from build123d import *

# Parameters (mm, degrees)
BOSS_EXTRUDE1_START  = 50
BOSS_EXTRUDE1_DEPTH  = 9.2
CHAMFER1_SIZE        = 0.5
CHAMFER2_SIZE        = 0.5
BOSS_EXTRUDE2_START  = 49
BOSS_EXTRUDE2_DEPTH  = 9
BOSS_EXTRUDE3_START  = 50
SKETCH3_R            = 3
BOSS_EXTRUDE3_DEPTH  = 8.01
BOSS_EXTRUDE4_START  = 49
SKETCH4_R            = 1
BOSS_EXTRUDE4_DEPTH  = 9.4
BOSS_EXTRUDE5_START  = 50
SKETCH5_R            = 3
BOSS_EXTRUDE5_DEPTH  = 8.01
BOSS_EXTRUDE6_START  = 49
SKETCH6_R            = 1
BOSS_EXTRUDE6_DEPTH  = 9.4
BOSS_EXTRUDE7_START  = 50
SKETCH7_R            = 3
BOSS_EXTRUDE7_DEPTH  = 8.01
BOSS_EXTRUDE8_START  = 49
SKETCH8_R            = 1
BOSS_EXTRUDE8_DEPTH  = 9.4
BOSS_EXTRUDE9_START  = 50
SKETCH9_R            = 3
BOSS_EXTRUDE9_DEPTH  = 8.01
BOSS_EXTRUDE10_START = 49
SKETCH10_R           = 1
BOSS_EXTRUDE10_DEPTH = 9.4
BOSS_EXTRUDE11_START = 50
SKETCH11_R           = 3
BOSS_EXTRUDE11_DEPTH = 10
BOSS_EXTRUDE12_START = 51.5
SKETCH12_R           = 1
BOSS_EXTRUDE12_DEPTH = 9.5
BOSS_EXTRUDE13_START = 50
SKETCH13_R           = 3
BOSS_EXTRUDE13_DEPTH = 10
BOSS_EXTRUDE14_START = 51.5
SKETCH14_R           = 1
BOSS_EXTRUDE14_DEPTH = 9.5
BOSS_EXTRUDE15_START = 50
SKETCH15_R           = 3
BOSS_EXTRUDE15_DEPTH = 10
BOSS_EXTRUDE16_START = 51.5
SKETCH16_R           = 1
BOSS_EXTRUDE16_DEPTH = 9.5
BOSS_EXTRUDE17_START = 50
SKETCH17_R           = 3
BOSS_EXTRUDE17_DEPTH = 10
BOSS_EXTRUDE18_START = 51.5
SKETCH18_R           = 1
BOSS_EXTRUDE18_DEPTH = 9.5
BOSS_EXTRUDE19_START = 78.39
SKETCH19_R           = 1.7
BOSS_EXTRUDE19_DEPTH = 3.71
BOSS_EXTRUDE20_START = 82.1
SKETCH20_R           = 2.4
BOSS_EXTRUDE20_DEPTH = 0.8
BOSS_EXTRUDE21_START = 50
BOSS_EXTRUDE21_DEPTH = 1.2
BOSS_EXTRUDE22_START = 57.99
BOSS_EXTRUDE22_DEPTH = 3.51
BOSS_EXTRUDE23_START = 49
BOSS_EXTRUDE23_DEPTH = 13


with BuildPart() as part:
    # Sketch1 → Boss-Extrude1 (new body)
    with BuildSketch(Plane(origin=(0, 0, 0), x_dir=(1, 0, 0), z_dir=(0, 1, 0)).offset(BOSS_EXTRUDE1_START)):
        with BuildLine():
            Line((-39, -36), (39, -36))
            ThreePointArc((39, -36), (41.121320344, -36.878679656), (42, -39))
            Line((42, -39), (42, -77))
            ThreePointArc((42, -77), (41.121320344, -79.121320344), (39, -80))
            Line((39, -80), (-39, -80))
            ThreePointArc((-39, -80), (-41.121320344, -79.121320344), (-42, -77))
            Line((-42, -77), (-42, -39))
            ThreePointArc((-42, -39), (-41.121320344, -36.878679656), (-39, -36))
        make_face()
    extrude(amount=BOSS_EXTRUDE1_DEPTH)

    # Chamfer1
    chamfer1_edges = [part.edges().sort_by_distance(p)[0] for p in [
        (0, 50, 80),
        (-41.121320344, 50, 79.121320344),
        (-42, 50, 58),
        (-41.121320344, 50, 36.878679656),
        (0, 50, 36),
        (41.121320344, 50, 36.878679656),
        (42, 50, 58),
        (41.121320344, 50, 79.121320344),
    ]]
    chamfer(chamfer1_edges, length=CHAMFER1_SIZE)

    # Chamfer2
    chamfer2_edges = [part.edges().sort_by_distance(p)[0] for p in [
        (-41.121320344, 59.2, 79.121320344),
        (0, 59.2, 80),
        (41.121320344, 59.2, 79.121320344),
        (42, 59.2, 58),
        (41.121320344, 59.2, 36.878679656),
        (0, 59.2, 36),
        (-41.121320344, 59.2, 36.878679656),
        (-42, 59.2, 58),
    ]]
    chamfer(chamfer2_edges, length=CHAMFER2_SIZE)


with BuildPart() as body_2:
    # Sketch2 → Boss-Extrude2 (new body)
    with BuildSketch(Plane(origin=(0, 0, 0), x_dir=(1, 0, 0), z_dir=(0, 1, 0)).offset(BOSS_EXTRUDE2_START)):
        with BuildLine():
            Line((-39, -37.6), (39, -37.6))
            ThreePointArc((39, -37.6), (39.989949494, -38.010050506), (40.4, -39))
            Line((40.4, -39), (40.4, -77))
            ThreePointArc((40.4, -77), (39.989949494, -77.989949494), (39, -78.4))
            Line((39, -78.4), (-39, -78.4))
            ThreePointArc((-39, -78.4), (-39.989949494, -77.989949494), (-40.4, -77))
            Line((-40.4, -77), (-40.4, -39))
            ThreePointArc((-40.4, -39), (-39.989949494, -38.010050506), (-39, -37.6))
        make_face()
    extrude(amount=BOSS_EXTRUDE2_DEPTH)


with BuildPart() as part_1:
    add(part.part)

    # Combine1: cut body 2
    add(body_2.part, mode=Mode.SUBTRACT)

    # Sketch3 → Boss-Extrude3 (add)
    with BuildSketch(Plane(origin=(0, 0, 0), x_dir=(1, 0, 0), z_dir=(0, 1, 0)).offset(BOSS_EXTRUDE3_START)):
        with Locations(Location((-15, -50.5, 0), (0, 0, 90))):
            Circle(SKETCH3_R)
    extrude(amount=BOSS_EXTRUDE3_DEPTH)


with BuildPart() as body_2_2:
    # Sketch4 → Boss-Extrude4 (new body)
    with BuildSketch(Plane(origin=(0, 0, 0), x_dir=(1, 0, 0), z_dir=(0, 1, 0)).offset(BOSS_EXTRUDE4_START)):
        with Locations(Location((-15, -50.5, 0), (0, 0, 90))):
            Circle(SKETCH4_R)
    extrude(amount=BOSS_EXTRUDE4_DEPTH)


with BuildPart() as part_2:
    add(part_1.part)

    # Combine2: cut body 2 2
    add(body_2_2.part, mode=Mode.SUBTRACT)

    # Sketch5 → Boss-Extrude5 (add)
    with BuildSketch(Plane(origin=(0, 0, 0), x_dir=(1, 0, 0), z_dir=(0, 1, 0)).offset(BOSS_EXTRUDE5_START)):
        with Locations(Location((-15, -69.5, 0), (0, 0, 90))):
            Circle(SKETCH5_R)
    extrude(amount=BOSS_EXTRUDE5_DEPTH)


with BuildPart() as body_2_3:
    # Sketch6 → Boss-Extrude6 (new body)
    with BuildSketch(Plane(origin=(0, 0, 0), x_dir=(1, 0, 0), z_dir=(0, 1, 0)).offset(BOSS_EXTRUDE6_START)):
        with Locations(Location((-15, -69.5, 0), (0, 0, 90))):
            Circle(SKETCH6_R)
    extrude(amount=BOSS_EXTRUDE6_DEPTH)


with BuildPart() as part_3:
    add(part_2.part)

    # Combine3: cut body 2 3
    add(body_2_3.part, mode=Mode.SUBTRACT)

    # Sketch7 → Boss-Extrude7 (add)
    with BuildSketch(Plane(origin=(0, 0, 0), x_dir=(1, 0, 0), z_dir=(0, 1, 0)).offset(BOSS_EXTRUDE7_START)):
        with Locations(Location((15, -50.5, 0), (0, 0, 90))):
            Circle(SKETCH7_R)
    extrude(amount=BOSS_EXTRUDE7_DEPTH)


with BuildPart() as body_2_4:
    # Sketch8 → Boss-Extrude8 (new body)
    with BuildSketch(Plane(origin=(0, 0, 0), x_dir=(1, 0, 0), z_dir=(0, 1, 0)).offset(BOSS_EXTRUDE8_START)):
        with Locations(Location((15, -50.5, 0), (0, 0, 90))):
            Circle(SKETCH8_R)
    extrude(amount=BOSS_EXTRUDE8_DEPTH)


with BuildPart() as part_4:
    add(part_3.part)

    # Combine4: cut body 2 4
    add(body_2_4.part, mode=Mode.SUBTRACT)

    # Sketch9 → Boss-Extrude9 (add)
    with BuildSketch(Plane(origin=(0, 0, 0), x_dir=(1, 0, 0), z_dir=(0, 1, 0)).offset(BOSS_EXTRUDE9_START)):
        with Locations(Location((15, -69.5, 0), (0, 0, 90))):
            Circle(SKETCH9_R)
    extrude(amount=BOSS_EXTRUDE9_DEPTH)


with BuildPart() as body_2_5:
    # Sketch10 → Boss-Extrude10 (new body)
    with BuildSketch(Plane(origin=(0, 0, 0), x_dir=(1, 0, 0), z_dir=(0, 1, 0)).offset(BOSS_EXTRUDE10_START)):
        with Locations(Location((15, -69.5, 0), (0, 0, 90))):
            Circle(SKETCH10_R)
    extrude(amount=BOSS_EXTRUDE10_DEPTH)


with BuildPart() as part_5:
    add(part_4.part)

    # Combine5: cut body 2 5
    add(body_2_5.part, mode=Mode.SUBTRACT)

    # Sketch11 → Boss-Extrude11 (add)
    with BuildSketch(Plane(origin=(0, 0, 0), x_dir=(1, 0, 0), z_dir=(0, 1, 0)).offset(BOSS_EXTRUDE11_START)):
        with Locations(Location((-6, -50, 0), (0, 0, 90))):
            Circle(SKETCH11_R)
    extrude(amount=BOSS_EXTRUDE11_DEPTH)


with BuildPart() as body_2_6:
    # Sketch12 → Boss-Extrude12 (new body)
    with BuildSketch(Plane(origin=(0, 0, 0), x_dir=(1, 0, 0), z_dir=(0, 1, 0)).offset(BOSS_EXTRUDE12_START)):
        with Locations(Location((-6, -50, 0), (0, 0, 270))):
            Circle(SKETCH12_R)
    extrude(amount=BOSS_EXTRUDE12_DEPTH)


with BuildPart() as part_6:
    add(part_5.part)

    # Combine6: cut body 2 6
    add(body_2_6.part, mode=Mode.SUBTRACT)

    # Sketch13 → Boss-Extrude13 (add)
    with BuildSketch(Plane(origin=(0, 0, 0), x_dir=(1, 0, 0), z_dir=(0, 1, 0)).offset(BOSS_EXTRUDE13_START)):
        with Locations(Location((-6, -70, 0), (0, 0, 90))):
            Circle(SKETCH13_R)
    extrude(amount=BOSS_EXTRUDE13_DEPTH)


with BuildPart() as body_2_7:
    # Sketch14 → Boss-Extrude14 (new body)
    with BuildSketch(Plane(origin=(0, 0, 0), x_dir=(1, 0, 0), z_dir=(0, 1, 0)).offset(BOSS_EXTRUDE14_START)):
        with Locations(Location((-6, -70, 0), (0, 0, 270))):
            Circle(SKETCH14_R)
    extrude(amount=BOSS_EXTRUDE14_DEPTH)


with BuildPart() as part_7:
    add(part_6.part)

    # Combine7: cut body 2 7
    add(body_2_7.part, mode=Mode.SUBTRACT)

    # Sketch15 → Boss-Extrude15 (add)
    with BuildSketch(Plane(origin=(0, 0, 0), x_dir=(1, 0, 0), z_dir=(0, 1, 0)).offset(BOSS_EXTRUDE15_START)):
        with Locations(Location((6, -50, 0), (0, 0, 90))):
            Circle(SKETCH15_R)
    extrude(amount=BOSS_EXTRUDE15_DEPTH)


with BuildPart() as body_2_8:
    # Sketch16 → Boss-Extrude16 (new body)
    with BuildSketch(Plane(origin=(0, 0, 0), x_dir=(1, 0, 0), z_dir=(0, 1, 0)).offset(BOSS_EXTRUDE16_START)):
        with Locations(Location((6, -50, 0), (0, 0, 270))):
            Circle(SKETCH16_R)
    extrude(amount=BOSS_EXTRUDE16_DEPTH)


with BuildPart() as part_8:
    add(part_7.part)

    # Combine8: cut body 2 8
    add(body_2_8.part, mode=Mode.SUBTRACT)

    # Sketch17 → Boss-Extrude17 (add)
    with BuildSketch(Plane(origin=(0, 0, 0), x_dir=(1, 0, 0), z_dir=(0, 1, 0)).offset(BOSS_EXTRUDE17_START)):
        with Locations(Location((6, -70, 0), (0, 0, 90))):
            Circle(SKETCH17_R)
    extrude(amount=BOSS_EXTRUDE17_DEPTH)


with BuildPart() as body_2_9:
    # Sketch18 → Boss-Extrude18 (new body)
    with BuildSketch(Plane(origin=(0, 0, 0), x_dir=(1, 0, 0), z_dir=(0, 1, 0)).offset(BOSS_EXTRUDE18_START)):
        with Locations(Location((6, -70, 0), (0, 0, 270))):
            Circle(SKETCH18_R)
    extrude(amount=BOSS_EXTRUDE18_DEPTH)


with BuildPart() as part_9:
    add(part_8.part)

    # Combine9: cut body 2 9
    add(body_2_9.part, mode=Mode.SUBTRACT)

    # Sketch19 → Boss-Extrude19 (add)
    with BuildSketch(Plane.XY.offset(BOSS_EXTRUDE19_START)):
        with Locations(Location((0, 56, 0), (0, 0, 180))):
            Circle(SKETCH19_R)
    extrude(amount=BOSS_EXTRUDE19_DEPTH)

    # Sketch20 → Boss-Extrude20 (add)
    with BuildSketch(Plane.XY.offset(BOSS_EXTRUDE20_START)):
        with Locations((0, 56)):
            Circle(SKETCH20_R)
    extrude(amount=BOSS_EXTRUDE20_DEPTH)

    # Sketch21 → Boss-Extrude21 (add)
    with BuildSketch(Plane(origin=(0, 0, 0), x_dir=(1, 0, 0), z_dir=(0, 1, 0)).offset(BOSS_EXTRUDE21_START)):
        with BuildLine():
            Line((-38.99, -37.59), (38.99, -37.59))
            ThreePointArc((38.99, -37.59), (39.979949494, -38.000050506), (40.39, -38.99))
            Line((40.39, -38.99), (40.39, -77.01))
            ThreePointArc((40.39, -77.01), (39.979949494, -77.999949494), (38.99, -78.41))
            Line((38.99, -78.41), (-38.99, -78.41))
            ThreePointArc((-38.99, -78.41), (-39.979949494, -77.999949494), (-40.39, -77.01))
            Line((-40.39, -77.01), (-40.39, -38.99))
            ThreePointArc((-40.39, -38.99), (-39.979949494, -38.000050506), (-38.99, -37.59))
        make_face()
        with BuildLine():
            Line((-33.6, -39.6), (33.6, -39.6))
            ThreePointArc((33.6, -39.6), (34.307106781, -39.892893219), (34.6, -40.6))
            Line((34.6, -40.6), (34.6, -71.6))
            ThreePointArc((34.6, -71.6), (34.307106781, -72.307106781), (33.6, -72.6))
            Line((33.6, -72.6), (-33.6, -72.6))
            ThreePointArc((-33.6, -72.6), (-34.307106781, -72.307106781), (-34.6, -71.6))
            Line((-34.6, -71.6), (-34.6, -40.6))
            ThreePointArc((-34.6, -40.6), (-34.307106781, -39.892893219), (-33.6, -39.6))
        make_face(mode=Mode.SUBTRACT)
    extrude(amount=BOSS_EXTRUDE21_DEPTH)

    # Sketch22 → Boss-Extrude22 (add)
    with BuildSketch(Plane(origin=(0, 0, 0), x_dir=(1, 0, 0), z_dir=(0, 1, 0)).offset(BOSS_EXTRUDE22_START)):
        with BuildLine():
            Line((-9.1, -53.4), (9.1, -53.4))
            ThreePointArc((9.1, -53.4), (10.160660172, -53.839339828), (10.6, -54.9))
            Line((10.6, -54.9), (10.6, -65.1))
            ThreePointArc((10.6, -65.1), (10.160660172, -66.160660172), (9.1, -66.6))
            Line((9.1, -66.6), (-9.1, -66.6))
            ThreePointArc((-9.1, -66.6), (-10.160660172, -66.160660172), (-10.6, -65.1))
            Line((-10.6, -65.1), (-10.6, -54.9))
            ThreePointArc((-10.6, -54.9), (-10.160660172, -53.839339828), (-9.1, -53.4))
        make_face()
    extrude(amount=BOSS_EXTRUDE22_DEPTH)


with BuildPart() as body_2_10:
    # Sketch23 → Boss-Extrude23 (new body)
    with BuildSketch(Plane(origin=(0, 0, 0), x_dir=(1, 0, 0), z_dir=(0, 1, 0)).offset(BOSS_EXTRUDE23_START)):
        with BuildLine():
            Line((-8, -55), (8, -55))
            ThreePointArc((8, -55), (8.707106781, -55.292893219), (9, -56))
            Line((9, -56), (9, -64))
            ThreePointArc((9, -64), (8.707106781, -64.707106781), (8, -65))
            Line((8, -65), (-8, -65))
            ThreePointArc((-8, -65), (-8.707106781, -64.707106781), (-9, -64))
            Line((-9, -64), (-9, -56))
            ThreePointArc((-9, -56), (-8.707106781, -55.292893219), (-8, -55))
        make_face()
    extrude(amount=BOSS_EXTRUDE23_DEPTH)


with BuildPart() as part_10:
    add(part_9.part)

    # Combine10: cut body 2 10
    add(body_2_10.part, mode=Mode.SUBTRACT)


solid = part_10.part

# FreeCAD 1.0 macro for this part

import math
import FreeCAD as App
import Part
import Sketcher
from FreeCAD import Vector
Q = App.Units.Quantity


def edges_at(feature, points):
    """Names of the edges that pass closest to the given points."""
    edges = feature.Shape.Edges
    near = lambda p: min(range(len(edges)), key=lambda i: edges[i].distToShape(Part.Vertex(*p))[0])
    return sorted({f"Edge{near(p) + 1}" for p in points})

doc = App.newDocument("Part")
body = doc.addObject("PartDesign::Body", "Body")

sketch1 = body.newObject("Sketcher::SketchObject", "Sketch")
sketch1.AttachmentSupport = (doc.getObject("XZ_Plane"), [""])
sketch1.MapMode = "FlatFace"
sketch1.AttachmentOffset = App.Placement(Vector(0, 0, -50), App.Rotation())
sketch1.addGeometry([
    Part.LineSegment(Vector(39, 36, 0), Vector(-39, 36, 0)),
    Part.ArcOfCircle(Part.Circle(Vector(-39, 39, 0), Vector(0, 0, 1), 3), math.radians(180), math.radians(270)),
    Part.LineSegment(Vector(-42, 39, 0), Vector(-42, 77, 0)),
    Part.ArcOfCircle(Part.Circle(Vector(-39, 77, 0), Vector(0, 0, 1), 3), math.radians(90), math.radians(180)),
    Part.LineSegment(Vector(-39, 80, 0), Vector(39, 80, 0)),
    Part.ArcOfCircle(Part.Circle(Vector(39, 77, 0), Vector(0, 0, 1), 3), math.radians(0), math.radians(90)),
    Part.LineSegment(Vector(42, 77, 0), Vector(42, 39, 0)),
    Part.ArcOfCircle(Part.Circle(Vector(39, 39, 0), Vector(0, 0, 1), 3), math.radians(-90), math.radians(0)),
], False)
sketch1.addConstraint([
    Sketcher.Constraint("Tangent", 0, 2, 1, 2),
    Sketcher.Constraint("Tangent", 1, 1, 2, 1),
    Sketcher.Constraint("Tangent", 2, 2, 3, 2),
    Sketcher.Constraint("Tangent", 3, 1, 4, 1),
    Sketcher.Constraint("Tangent", 4, 2, 5, 2),
    Sketcher.Constraint("Tangent", 5, 1, 6, 1),
    Sketcher.Constraint("Tangent", 6, 2, 7, 2),
    Sketcher.Constraint("Tangent", 7, 1, 0, 1),
    Sketcher.Constraint("Horizontal", 0),
    Sketcher.Constraint("Vertical", 2),
    Sketcher.Constraint("Horizontal", 4),
    Sketcher.Constraint("Vertical", 6),
    Sketcher.Constraint("Equal", 1, 3),
    Sketcher.Constraint("Equal", 3, 5),
    Sketcher.Constraint("Equal", 5, 7),
    Sketcher.Constraint("Radius", 1, Q("3 mm")),
    Sketcher.Constraint("DistanceX", 0, 2, 0, 1, Q("78 mm")),
    Sketcher.Constraint("DistanceY", 2, 1, 2, 2, Q("38 mm")),
    Sketcher.Constraint("DistanceX", 1, 3, -1, 1, Q("39 mm")),
    Sketcher.Constraint("DistanceY", -1, 1, 1, 3, Q("39 mm")),
])
pad1 = body.newObject("PartDesign::Pad", "Pad")
pad1.Profile = sketch1
pad1.Length = 9.2
pad1.Reversed = True
doc.recompute()

chamfer = body.newObject("PartDesign::Chamfer", "Chamfer")
chamfer.Base = (pad1, edges_at(pad1, [
    (0, 50, 80),
    (-41.121, 50, 79.121),
    (-42, 50, 58),
    (-41.121, 50, 36.879),
    (0, 50, 36),
    (41.121, 50, 36.879),
    (42, 50, 58),
    (41.121, 50, 79.121),
]))
chamfer.Size = 0.5
doc.recompute()

chamfer2 = body.newObject("PartDesign::Chamfer", "Chamfer001")
chamfer2.Base = (chamfer, edges_at(chamfer, [
    (-41.121, 59.2, 79.121),
    (0, 59.2, 80),
    (41.121, 59.2, 79.121),
    (42, 59.2, 58),
    (41.121, 59.2, 36.879),
    (0, 59.2, 36),
    (-41.121, 59.2, 36.879),
    (-42, 59.2, 58),
]))
chamfer2.Size = 0.5
body2 = doc.addObject("PartDesign::Body", "Body001")

sketch2 = body2.newObject("Sketcher::SketchObject", "Sketch001")
sketch2.AttachmentSupport = (doc.getObject("XZ_Plane001"), [""])
sketch2.MapMode = "FlatFace"
sketch2.AttachmentOffset = App.Placement(Vector(0, 0, -49), App.Rotation())
sketch2.addGeometry([
    Part.LineSegment(Vector(39, 37.6, 0), Vector(-39, 37.6, 0)),
    Part.ArcOfCircle(Part.Circle(Vector(-39, 39, 0), Vector(0, 0, 1), 1.4), math.radians(180), math.radians(270)),
    Part.LineSegment(Vector(-40.4, 39, 0), Vector(-40.4, 77, 0)),
    Part.ArcOfCircle(Part.Circle(Vector(-39, 77, 0), Vector(0, 0, 1), 1.4), math.radians(90), math.radians(180)),
    Part.LineSegment(Vector(-39, 78.4, 0), Vector(39, 78.4, 0)),
    Part.ArcOfCircle(Part.Circle(Vector(39, 77, 0), Vector(0, 0, 1), 1.4), math.radians(0), math.radians(90)),
    Part.LineSegment(Vector(40.4, 77, 0), Vector(40.4, 39, 0)),
    Part.ArcOfCircle(Part.Circle(Vector(39, 39, 0), Vector(0, 0, 1), 1.4), math.radians(-90), math.radians(0)),
], False)
sketch2.addConstraint([
    Sketcher.Constraint("Tangent", 0, 2, 1, 2),
    Sketcher.Constraint("Tangent", 1, 1, 2, 1),
    Sketcher.Constraint("Tangent", 2, 2, 3, 2),
    Sketcher.Constraint("Tangent", 3, 1, 4, 1),
    Sketcher.Constraint("Tangent", 4, 2, 5, 2),
    Sketcher.Constraint("Tangent", 5, 1, 6, 1),
    Sketcher.Constraint("Tangent", 6, 2, 7, 2),
    Sketcher.Constraint("Tangent", 7, 1, 0, 1),
    Sketcher.Constraint("Horizontal", 0),
    Sketcher.Constraint("Vertical", 2),
    Sketcher.Constraint("Horizontal", 4),
    Sketcher.Constraint("Vertical", 6),
    Sketcher.Constraint("Equal", 1, 3),
    Sketcher.Constraint("Equal", 3, 5),
    Sketcher.Constraint("Equal", 5, 7),
    Sketcher.Constraint("Radius", 1, Q("1.4 mm")),
    Sketcher.Constraint("DistanceX", 0, 2, 0, 1, Q("78 mm")),
    Sketcher.Constraint("DistanceY", 2, 1, 2, 2, Q("38 mm")),
    Sketcher.Constraint("DistanceX", 1, 3, -1, 1, Q("39 mm")),
    Sketcher.Constraint("DistanceY", -1, 1, 1, 3, Q("39 mm")),
])
pad2 = body2.newObject("PartDesign::Pad", "Pad001")
pad2.Profile = sketch2
pad2.Length = 9
pad2.Reversed = True
doc.recompute()

boolean = body.newObject("PartDesign::Boolean", "Boolean")
boolean.Type = "Cut"
boolean.addObjects([body2])

sketch3 = body.newObject("Sketcher::SketchObject", "Sketch002")
sketch3.AttachmentSupport = (doc.getObject("XZ_Plane"), [""])
sketch3.MapMode = "FlatFace"
sketch3.AttachmentOffset = App.Placement(Vector(0, 0, -50), App.Rotation())
sketch3.addGeometry(Part.Circle(Vector(-15, 50.5, 0), Vector(0, 0, 1), 3), False)
sketch3.addConstraint([
    Sketcher.Constraint("Diameter", 0, Q("6 mm")),
    Sketcher.Constraint("DistanceX", 0, 3, -1, 1, Q("15 mm")),
    Sketcher.Constraint("DistanceY", -1, 1, 0, 3, Q("50.5 mm")),
])
pad3 = body.newObject("PartDesign::Pad", "Pad002")
pad3.Profile = sketch3
pad3.Length = 8.01
pad3.Reversed = True
body3 = doc.addObject("PartDesign::Body", "Body002")

sketch4 = body3.newObject("Sketcher::SketchObject", "Sketch003")
sketch4.AttachmentSupport = (doc.getObject("XZ_Plane002"), [""])
sketch4.MapMode = "FlatFace"
sketch4.AttachmentOffset = App.Placement(Vector(0, 0, -49), App.Rotation())
sketch4.addGeometry(Part.Circle(Vector(-15, 50.5, 0), Vector(0, 0, 1), 1), False)
sketch4.addConstraint([
    Sketcher.Constraint("Diameter", 0, Q("2 mm")),
    Sketcher.Constraint("DistanceX", 0, 3, -1, 1, Q("15 mm")),
    Sketcher.Constraint("DistanceY", -1, 1, 0, 3, Q("50.5 mm")),
])
pad4 = body3.newObject("PartDesign::Pad", "Pad003")
pad4.Profile = sketch4
pad4.Length = 9.4
pad4.Reversed = True
doc.recompute()

boolean2 = body.newObject("PartDesign::Boolean", "Boolean001")
boolean2.Type = "Cut"
boolean2.addObjects([body3])

sketch5 = body.newObject("Sketcher::SketchObject", "Sketch004")
sketch5.AttachmentSupport = (doc.getObject("XZ_Plane"), [""])
sketch5.MapMode = "FlatFace"
sketch5.AttachmentOffset = App.Placement(Vector(0, 0, -50), App.Rotation())
sketch5.addGeometry(Part.Circle(Vector(-15, 69.5, 0), Vector(0, 0, 1), 3), False)
sketch5.addConstraint([
    Sketcher.Constraint("Diameter", 0, Q("6 mm")),
    Sketcher.Constraint("DistanceX", 0, 3, -1, 1, Q("15 mm")),
    Sketcher.Constraint("DistanceY", -1, 1, 0, 3, Q("69.5 mm")),
])
pad5 = body.newObject("PartDesign::Pad", "Pad004")
pad5.Profile = sketch5
pad5.Length = 8.01
pad5.Reversed = True
body4 = doc.addObject("PartDesign::Body", "Body003")

sketch6 = body4.newObject("Sketcher::SketchObject", "Sketch005")
sketch6.AttachmentSupport = (doc.getObject("XZ_Plane003"), [""])
sketch6.MapMode = "FlatFace"
sketch6.AttachmentOffset = App.Placement(Vector(0, 0, -49), App.Rotation())
sketch6.addGeometry(Part.Circle(Vector(-15, 69.5, 0), Vector(0, 0, 1), 1), False)
sketch6.addConstraint([
    Sketcher.Constraint("Diameter", 0, Q("2 mm")),
    Sketcher.Constraint("DistanceX", 0, 3, -1, 1, Q("15 mm")),
    Sketcher.Constraint("DistanceY", -1, 1, 0, 3, Q("69.5 mm")),
])
pad6 = body4.newObject("PartDesign::Pad", "Pad005")
pad6.Profile = sketch6
pad6.Length = 9.4
pad6.Reversed = True
doc.recompute()

boolean3 = body.newObject("PartDesign::Boolean", "Boolean002")
boolean3.Type = "Cut"
boolean3.addObjects([body4])

sketch7 = body.newObject("Sketcher::SketchObject", "Sketch006")
sketch7.AttachmentSupport = (doc.getObject("XZ_Plane"), [""])
sketch7.MapMode = "FlatFace"
sketch7.AttachmentOffset = App.Placement(Vector(0, 0, -50), App.Rotation())
sketch7.addGeometry(Part.Circle(Vector(15, 50.5, 0), Vector(0, 0, 1), 3), False)
sketch7.addConstraint([
    Sketcher.Constraint("Diameter", 0, Q("6 mm")),
    Sketcher.Constraint("DistanceX", -1, 1, 0, 3, Q("15 mm")),
    Sketcher.Constraint("DistanceY", -1, 1, 0, 3, Q("50.5 mm")),
])
pad7 = body.newObject("PartDesign::Pad", "Pad006")
pad7.Profile = sketch7
pad7.Length = 8.01
pad7.Reversed = True
body5 = doc.addObject("PartDesign::Body", "Body004")

sketch8 = body5.newObject("Sketcher::SketchObject", "Sketch007")
sketch8.AttachmentSupport = (doc.getObject("XZ_Plane004"), [""])
sketch8.MapMode = "FlatFace"
sketch8.AttachmentOffset = App.Placement(Vector(0, 0, -49), App.Rotation())
sketch8.addGeometry(Part.Circle(Vector(15, 50.5, 0), Vector(0, 0, 1), 1), False)
sketch8.addConstraint([
    Sketcher.Constraint("Diameter", 0, Q("2 mm")),
    Sketcher.Constraint("DistanceX", -1, 1, 0, 3, Q("15 mm")),
    Sketcher.Constraint("DistanceY", -1, 1, 0, 3, Q("50.5 mm")),
])
pad8 = body5.newObject("PartDesign::Pad", "Pad007")
pad8.Profile = sketch8
pad8.Length = 9.4
pad8.Reversed = True
doc.recompute()

boolean4 = body.newObject("PartDesign::Boolean", "Boolean003")
boolean4.Type = "Cut"
boolean4.addObjects([body5])

sketch9 = body.newObject("Sketcher::SketchObject", "Sketch008")
sketch9.AttachmentSupport = (doc.getObject("XZ_Plane"), [""])
sketch9.MapMode = "FlatFace"
sketch9.AttachmentOffset = App.Placement(Vector(0, 0, -50), App.Rotation())
sketch9.addGeometry(Part.Circle(Vector(15, 69.5, 0), Vector(0, 0, 1), 3), False)
sketch9.addConstraint([
    Sketcher.Constraint("Diameter", 0, Q("6 mm")),
    Sketcher.Constraint("DistanceX", -1, 1, 0, 3, Q("15 mm")),
    Sketcher.Constraint("DistanceY", -1, 1, 0, 3, Q("69.5 mm")),
])
pad9 = body.newObject("PartDesign::Pad", "Pad008")
pad9.Profile = sketch9
pad9.Length = 8.01
pad9.Reversed = True
body6 = doc.addObject("PartDesign::Body", "Body005")

sketch10 = body6.newObject("Sketcher::SketchObject", "Sketch009")
sketch10.AttachmentSupport = (doc.getObject("XZ_Plane005"), [""])
sketch10.MapMode = "FlatFace"
sketch10.AttachmentOffset = App.Placement(Vector(0, 0, -49), App.Rotation())
sketch10.addGeometry(Part.Circle(Vector(15, 69.5, 0), Vector(0, 0, 1), 1), False)
sketch10.addConstraint([
    Sketcher.Constraint("Diameter", 0, Q("2 mm")),
    Sketcher.Constraint("DistanceX", -1, 1, 0, 3, Q("15 mm")),
    Sketcher.Constraint("DistanceY", -1, 1, 0, 3, Q("69.5 mm")),
])
pad10 = body6.newObject("PartDesign::Pad", "Pad009")
pad10.Profile = sketch10
pad10.Length = 9.4
pad10.Reversed = True
doc.recompute()

boolean5 = body.newObject("PartDesign::Boolean", "Boolean004")
boolean5.Type = "Cut"
boolean5.addObjects([body6])

sketch11 = body.newObject("Sketcher::SketchObject", "Sketch010")
sketch11.AttachmentSupport = (doc.getObject("XZ_Plane"), [""])
sketch11.MapMode = "FlatFace"
sketch11.AttachmentOffset = App.Placement(Vector(0, 0, -50), App.Rotation())
sketch11.addGeometry(Part.Circle(Vector(-6, 50, 0), Vector(0, 0, 1), 3), False)
sketch11.addConstraint([
    Sketcher.Constraint("Diameter", 0, Q("6 mm")),
    Sketcher.Constraint("DistanceX", 0, 3, -1, 1, Q("6 mm")),
    Sketcher.Constraint("DistanceY", -1, 1, 0, 3, Q("50 mm")),
])
pad11 = body.newObject("PartDesign::Pad", "Pad010")
pad11.Profile = sketch11
pad11.Length = 10
pad11.Reversed = True
body7 = doc.addObject("PartDesign::Body", "Body006")

sketch12 = body7.newObject("Sketcher::SketchObject", "Sketch011")
sketch12.AttachmentSupport = (doc.getObject("XZ_Plane006"), [""])
sketch12.MapMode = "FlatFace"
sketch12.AttachmentOffset = App.Placement(Vector(0, 0, -51.5), App.Rotation())
sketch12.addGeometry(Part.Circle(Vector(-6, 50, 0), Vector(0, 0, 1), 1), False)
sketch12.addConstraint([
    Sketcher.Constraint("Diameter", 0, Q("2 mm")),
    Sketcher.Constraint("DistanceX", 0, 3, -1, 1, Q("6 mm")),
    Sketcher.Constraint("DistanceY", -1, 1, 0, 3, Q("50 mm")),
])
pad12 = body7.newObject("PartDesign::Pad", "Pad011")
pad12.Profile = sketch12
pad12.Length = 9.5
pad12.Reversed = True
doc.recompute()

boolean6 = body.newObject("PartDesign::Boolean", "Boolean005")
boolean6.Type = "Cut"
boolean6.addObjects([body7])

sketch13 = body.newObject("Sketcher::SketchObject", "Sketch012")
sketch13.AttachmentSupport = (doc.getObject("XZ_Plane"), [""])
sketch13.MapMode = "FlatFace"
sketch13.AttachmentOffset = App.Placement(Vector(0, 0, -50), App.Rotation())
sketch13.addGeometry(Part.Circle(Vector(-6, 70, 0), Vector(0, 0, 1), 3), False)
sketch13.addConstraint([
    Sketcher.Constraint("Diameter", 0, Q("6 mm")),
    Sketcher.Constraint("DistanceX", 0, 3, -1, 1, Q("6 mm")),
    Sketcher.Constraint("DistanceY", -1, 1, 0, 3, Q("70 mm")),
])
pad13 = body.newObject("PartDesign::Pad", "Pad012")
pad13.Profile = sketch13
pad13.Length = 10
pad13.Reversed = True
body8 = doc.addObject("PartDesign::Body", "Body007")

sketch14 = body8.newObject("Sketcher::SketchObject", "Sketch013")
sketch14.AttachmentSupport = (doc.getObject("XZ_Plane007"), [""])
sketch14.MapMode = "FlatFace"
sketch14.AttachmentOffset = App.Placement(Vector(0, 0, -51.5), App.Rotation())
sketch14.addGeometry(Part.Circle(Vector(-6, 70, 0), Vector(0, 0, 1), 1), False)
sketch14.addConstraint([
    Sketcher.Constraint("Diameter", 0, Q("2 mm")),
    Sketcher.Constraint("DistanceX", 0, 3, -1, 1, Q("6 mm")),
    Sketcher.Constraint("DistanceY", -1, 1, 0, 3, Q("70 mm")),
])
pad14 = body8.newObject("PartDesign::Pad", "Pad013")
pad14.Profile = sketch14
pad14.Length = 9.5
pad14.Reversed = True
doc.recompute()

boolean7 = body.newObject("PartDesign::Boolean", "Boolean006")
boolean7.Type = "Cut"
boolean7.addObjects([body8])

sketch15 = body.newObject("Sketcher::SketchObject", "Sketch014")
sketch15.AttachmentSupport = (doc.getObject("XZ_Plane"), [""])
sketch15.MapMode = "FlatFace"
sketch15.AttachmentOffset = App.Placement(Vector(0, 0, -50), App.Rotation())
sketch15.addGeometry(Part.Circle(Vector(6, 50, 0), Vector(0, 0, 1), 3), False)
sketch15.addConstraint([
    Sketcher.Constraint("Diameter", 0, Q("6 mm")),
    Sketcher.Constraint("DistanceX", -1, 1, 0, 3, Q("6 mm")),
    Sketcher.Constraint("DistanceY", -1, 1, 0, 3, Q("50 mm")),
])
pad15 = body.newObject("PartDesign::Pad", "Pad014")
pad15.Profile = sketch15
pad15.Length = 10
pad15.Reversed = True
body9 = doc.addObject("PartDesign::Body", "Body008")

sketch16 = body9.newObject("Sketcher::SketchObject", "Sketch015")
sketch16.AttachmentSupport = (doc.getObject("XZ_Plane008"), [""])
sketch16.MapMode = "FlatFace"
sketch16.AttachmentOffset = App.Placement(Vector(0, 0, -51.5), App.Rotation())
sketch16.addGeometry(Part.Circle(Vector(6, 50, 0), Vector(0, 0, 1), 1), False)
sketch16.addConstraint([
    Sketcher.Constraint("Diameter", 0, Q("2 mm")),
    Sketcher.Constraint("DistanceX", -1, 1, 0, 3, Q("6 mm")),
    Sketcher.Constraint("DistanceY", -1, 1, 0, 3, Q("50 mm")),
])
pad16 = body9.newObject("PartDesign::Pad", "Pad015")
pad16.Profile = sketch16
pad16.Length = 9.5
pad16.Reversed = True
doc.recompute()

boolean8 = body.newObject("PartDesign::Boolean", "Boolean007")
boolean8.Type = "Cut"
boolean8.addObjects([body9])

sketch17 = body.newObject("Sketcher::SketchObject", "Sketch016")
sketch17.AttachmentSupport = (doc.getObject("XZ_Plane"), [""])
sketch17.MapMode = "FlatFace"
sketch17.AttachmentOffset = App.Placement(Vector(0, 0, -50), App.Rotation())
sketch17.addGeometry(Part.Circle(Vector(6, 70, 0), Vector(0, 0, 1), 3), False)
sketch17.addConstraint([
    Sketcher.Constraint("Diameter", 0, Q("6 mm")),
    Sketcher.Constraint("DistanceX", -1, 1, 0, 3, Q("6 mm")),
    Sketcher.Constraint("DistanceY", -1, 1, 0, 3, Q("70 mm")),
])
pad17 = body.newObject("PartDesign::Pad", "Pad016")
pad17.Profile = sketch17
pad17.Length = 10
pad17.Reversed = True
body10 = doc.addObject("PartDesign::Body", "Body009")

sketch18 = body10.newObject("Sketcher::SketchObject", "Sketch017")
sketch18.AttachmentSupport = (doc.getObject("XZ_Plane009"), [""])
sketch18.MapMode = "FlatFace"
sketch18.AttachmentOffset = App.Placement(Vector(0, 0, -51.5), App.Rotation())
sketch18.addGeometry(Part.Circle(Vector(6, 70, 0), Vector(0, 0, 1), 1), False)
sketch18.addConstraint([
    Sketcher.Constraint("Diameter", 0, Q("2 mm")),
    Sketcher.Constraint("DistanceX", -1, 1, 0, 3, Q("6 mm")),
    Sketcher.Constraint("DistanceY", -1, 1, 0, 3, Q("70 mm")),
])
pad18 = body10.newObject("PartDesign::Pad", "Pad017")
pad18.Profile = sketch18
pad18.Length = 9.5
pad18.Reversed = True
doc.recompute()

boolean9 = body.newObject("PartDesign::Boolean", "Boolean008")
boolean9.Type = "Cut"
boolean9.addObjects([body10])

sketch19 = body.newObject("Sketcher::SketchObject", "Sketch018")
sketch19.AttachmentSupport = (doc.getObject("XY_Plane"), [""])
sketch19.MapMode = "FlatFace"
sketch19.AttachmentOffset = App.Placement(Vector(0, 0, 78.39), App.Rotation())
sketch19.addGeometry(Part.Circle(Vector(0, 56, 0), Vector(0, 0, 1), 1.7), False)
sketch19.addConstraint([
    Sketcher.Constraint("PointOnObject", 0, 3, -2),
    Sketcher.Constraint("Diameter", 0, Q("3.4 mm")),
    Sketcher.Constraint("DistanceY", -1, 1, 0, 3, Q("56 mm")),
])
pad19 = body.newObject("PartDesign::Pad", "Pad018")
pad19.Profile = sketch19
pad19.Length = 3.71

sketch20 = body.newObject("Sketcher::SketchObject", "Sketch019")
sketch20.AttachmentSupport = (doc.getObject("XY_Plane"), [""])
sketch20.MapMode = "FlatFace"
sketch20.AttachmentOffset = App.Placement(Vector(0, 0, 82.1), App.Rotation())
sketch20.addGeometry(Part.Circle(Vector(0, 56, 0), Vector(0, 0, 1), 2.4), False)
sketch20.addConstraint([
    Sketcher.Constraint("PointOnObject", 0, 3, -2),
    Sketcher.Constraint("Diameter", 0, Q("4.8 mm")),
    Sketcher.Constraint("DistanceY", -1, 1, 0, 3, Q("56 mm")),
])
pad20 = body.newObject("PartDesign::Pad", "Pad019")
pad20.Profile = sketch20
pad20.Length = 0.8

sketch21 = body.newObject("Sketcher::SketchObject", "Sketch020")
sketch21.AttachmentSupport = (doc.getObject("XZ_Plane"), [""])
sketch21.MapMode = "FlatFace"
sketch21.AttachmentOffset = App.Placement(Vector(0, 0, -50), App.Rotation())
sketch21.addGeometry([
    Part.LineSegment(Vector(38.99, 37.59, 0), Vector(-38.99, 37.59, 0)),
    Part.ArcOfCircle(Part.Circle(Vector(-38.99, 38.99, 0), Vector(0, 0, 1), 1.4), math.radians(180), math.radians(270)),
    Part.LineSegment(Vector(-40.39, 38.99, 0), Vector(-40.39, 77.01, 0)),
    Part.ArcOfCircle(Part.Circle(Vector(-38.99, 77.01, 0), Vector(0, 0, 1), 1.4), math.radians(90), math.radians(180)),
    Part.LineSegment(Vector(-38.99, 78.41, 0), Vector(38.99, 78.41, 0)),
    Part.ArcOfCircle(Part.Circle(Vector(38.99, 77.01, 0), Vector(0, 0, 1), 1.4), math.radians(0), math.radians(90)),
    Part.LineSegment(Vector(40.39, 77.01, 0), Vector(40.39, 38.99, 0)),
    Part.ArcOfCircle(Part.Circle(Vector(38.99, 38.99, 0), Vector(0, 0, 1), 1.4), math.radians(-90), math.radians(0)),
    Part.LineSegment(Vector(-33.6, 39.6, 0), Vector(33.6, 39.6, 0)),
    Part.ArcOfCircle(Part.Circle(Vector(33.6, 40.6, 0), Vector(0, 0, 1), 1), math.radians(-90), math.radians(0)),
    Part.LineSegment(Vector(34.6, 40.6, 0), Vector(34.6, 71.6, 0)),
    Part.ArcOfCircle(Part.Circle(Vector(33.6, 71.6, 0), Vector(0, 0, 1), 1), math.radians(0), math.radians(90)),
    Part.LineSegment(Vector(33.6, 72.6, 0), Vector(-33.6, 72.6, 0)),
    Part.ArcOfCircle(Part.Circle(Vector(-33.6, 71.6, 0), Vector(0, 0, 1), 1), math.radians(90), math.radians(180)),
    Part.LineSegment(Vector(-34.6, 71.6, 0), Vector(-34.6, 40.6, 0)),
    Part.ArcOfCircle(Part.Circle(Vector(-33.6, 40.6, 0), Vector(0, 0, 1), 1), math.radians(-180), math.radians(-90)),
], False)
sketch21.addConstraint([
    Sketcher.Constraint("Tangent", 0, 2, 1, 2),
    Sketcher.Constraint("Tangent", 1, 1, 2, 1),
    Sketcher.Constraint("Tangent", 2, 2, 3, 2),
    Sketcher.Constraint("Tangent", 3, 1, 4, 1),
    Sketcher.Constraint("Tangent", 4, 2, 5, 2),
    Sketcher.Constraint("Tangent", 5, 1, 6, 1),
    Sketcher.Constraint("Tangent", 6, 2, 7, 2),
    Sketcher.Constraint("Tangent", 7, 1, 0, 1),
    Sketcher.Constraint("Tangent", 8, 2, 9, 1),
    Sketcher.Constraint("Tangent", 9, 2, 10, 1),
    Sketcher.Constraint("Tangent", 10, 2, 11, 1),
    Sketcher.Constraint("Tangent", 11, 2, 12, 1),
    Sketcher.Constraint("Tangent", 12, 2, 13, 1),
    Sketcher.Constraint("Tangent", 13, 2, 14, 1),
    Sketcher.Constraint("Tangent", 14, 2, 15, 1),
    Sketcher.Constraint("Tangent", 15, 2, 8, 1),
    Sketcher.Constraint("Horizontal", 0),
    Sketcher.Constraint("Vertical", 2),
    Sketcher.Constraint("Horizontal", 4),
    Sketcher.Constraint("Vertical", 6),
    Sketcher.Constraint("Horizontal", 8),
    Sketcher.Constraint("Vertical", 10),
    Sketcher.Constraint("Horizontal", 12),
    Sketcher.Constraint("Vertical", 14),
    Sketcher.Constraint("Equal", 1, 3),
    Sketcher.Constraint("Equal", 3, 5),
    Sketcher.Constraint("Equal", 5, 7),
    Sketcher.Constraint("Equal", 9, 11),
    Sketcher.Constraint("Equal", 11, 13),
    Sketcher.Constraint("Equal", 13, 15),
    Sketcher.Constraint("Radius", 9, Q("1 mm")),
    Sketcher.Constraint("Radius", 1, Q("1.4 mm")),
    Sketcher.Constraint("DistanceY", 10, 1, 10, 2, Q("31 mm")),
    Sketcher.Constraint("DistanceX", 8, 1, 8, 2, Q("67.2 mm")),
    Sketcher.Constraint("DistanceX", 0, 2, 0, 1, Q("77.98 mm")),
    Sketcher.Constraint("DistanceY", 2, 1, 2, 2, Q("38.02 mm")),
    Sketcher.Constraint("DistanceX", -1, 1, 9, 3, Q("33.6 mm")),
    Sketcher.Constraint("DistanceY", -1, 1, 9, 3, Q("40.6 mm")),
    Sketcher.Constraint("DistanceX", 1, 3, -1, 1, Q("38.99 mm")),
    Sketcher.Constraint("DistanceY", -1, 1, 1, 3, Q("38.99 mm")),
])
pad21 = body.newObject("PartDesign::Pad", "Pad020")
pad21.Profile = sketch21
pad21.Length = 1.2
pad21.Reversed = True

sketch22 = body.newObject("Sketcher::SketchObject", "Sketch021")
sketch22.AttachmentSupport = (doc.getObject("XZ_Plane"), [""])
sketch22.MapMode = "FlatFace"
sketch22.AttachmentOffset = App.Placement(Vector(0, 0, -57.99), App.Rotation())
sketch22.addGeometry([
    Part.LineSegment(Vector(9.1, 53.4, 0), Vector(-9.1, 53.4, 0)),
    Part.ArcOfCircle(Part.Circle(Vector(-9.1, 54.9, 0), Vector(0, 0, 1), 1.5), math.radians(180), math.radians(270)),
    Part.LineSegment(Vector(-10.6, 54.9, 0), Vector(-10.6, 65.1, 0)),
    Part.ArcOfCircle(Part.Circle(Vector(-9.1, 65.1, 0), Vector(0, 0, 1), 1.5), math.radians(90), math.radians(180)),
    Part.LineSegment(Vector(-9.1, 66.6, 0), Vector(9.1, 66.6, 0)),
    Part.ArcOfCircle(Part.Circle(Vector(9.1, 65.1, 0), Vector(0, 0, 1), 1.5), math.radians(0), math.radians(90)),
    Part.LineSegment(Vector(10.6, 65.1, 0), Vector(10.6, 54.9, 0)),
    Part.ArcOfCircle(Part.Circle(Vector(9.1, 54.9, 0), Vector(0, 0, 1), 1.5), math.radians(-90), math.radians(0)),
], False)
sketch22.addConstraint([
    Sketcher.Constraint("Tangent", 0, 2, 1, 2),
    Sketcher.Constraint("Tangent", 1, 1, 2, 1),
    Sketcher.Constraint("Tangent", 2, 2, 3, 2),
    Sketcher.Constraint("Tangent", 3, 1, 4, 1),
    Sketcher.Constraint("Tangent", 4, 2, 5, 2),
    Sketcher.Constraint("Tangent", 5, 1, 6, 1),
    Sketcher.Constraint("Tangent", 6, 2, 7, 2),
    Sketcher.Constraint("Tangent", 7, 1, 0, 1),
    Sketcher.Constraint("Horizontal", 0),
    Sketcher.Constraint("Vertical", 2),
    Sketcher.Constraint("Horizontal", 4),
    Sketcher.Constraint("Vertical", 6),
    Sketcher.Constraint("Equal", 1, 3),
    Sketcher.Constraint("Equal", 3, 5),
    Sketcher.Constraint("Equal", 5, 7),
    Sketcher.Constraint("Radius", 1, Q("1.5 mm")),
    Sketcher.Constraint("DistanceX", 0, 2, 0, 1, Q("18.2 mm")),
    Sketcher.Constraint("DistanceY", 2, 1, 2, 2, Q("10.2 mm")),
    Sketcher.Constraint("DistanceX", 1, 3, -1, 1, Q("9.1 mm")),
    Sketcher.Constraint("DistanceY", -1, 1, 1, 3, Q("54.9 mm")),
])
pad22 = body.newObject("PartDesign::Pad", "Pad021")
pad22.Profile = sketch22
pad22.Length = 3.51
pad22.Reversed = True
body11 = doc.addObject("PartDesign::Body", "Body010")

sketch23 = body11.newObject("Sketcher::SketchObject", "Sketch022")
sketch23.AttachmentSupport = (doc.getObject("XZ_Plane010"), [""])
sketch23.MapMode = "FlatFace"
sketch23.AttachmentOffset = App.Placement(Vector(0, 0, -49), App.Rotation())
sketch23.addGeometry([
    Part.LineSegment(Vector(8, 55, 0), Vector(-8, 55, 0)),
    Part.ArcOfCircle(Part.Circle(Vector(-8, 56, 0), Vector(0, 0, 1), 1), math.radians(-180), math.radians(-90)),
    Part.LineSegment(Vector(-9, 56, 0), Vector(-9, 64, 0)),
    Part.ArcOfCircle(Part.Circle(Vector(-8, 64, 0), Vector(0, 0, 1), 1), math.radians(90), math.radians(180)),
    Part.LineSegment(Vector(-8, 65, 0), Vector(8, 65, 0)),
    Part.ArcOfCircle(Part.Circle(Vector(8, 64, 0), Vector(0, 0, 1), 1), math.radians(0), math.radians(90)),
    Part.LineSegment(Vector(9, 64, 0), Vector(9, 56, 0)),
    Part.ArcOfCircle(Part.Circle(Vector(8, 56, 0), Vector(0, 0, 1), 1), math.radians(-90), math.radians(0)),
], False)
sketch23.addConstraint([
    Sketcher.Constraint("Tangent", 0, 2, 1, 2),
    Sketcher.Constraint("Tangent", 1, 1, 2, 1),
    Sketcher.Constraint("Tangent", 2, 2, 3, 2),
    Sketcher.Constraint("Tangent", 3, 1, 4, 1),
    Sketcher.Constraint("Tangent", 4, 2, 5, 2),
    Sketcher.Constraint("Tangent", 5, 1, 6, 1),
    Sketcher.Constraint("Tangent", 6, 2, 7, 2),
    Sketcher.Constraint("Tangent", 7, 1, 0, 1),
    Sketcher.Constraint("Horizontal", 0),
    Sketcher.Constraint("Vertical", 2),
    Sketcher.Constraint("Horizontal", 4),
    Sketcher.Constraint("Vertical", 6),
    Sketcher.Constraint("Equal", 1, 3),
    Sketcher.Constraint("Equal", 3, 5),
    Sketcher.Constraint("Equal", 5, 7),
    Sketcher.Constraint("Radius", 1, Q("1 mm")),
    Sketcher.Constraint("DistanceX", 0, 2, 0, 1, Q("16 mm")),
    Sketcher.Constraint("DistanceY", 2, 1, 2, 2, Q("8 mm")),
    Sketcher.Constraint("DistanceX", 1, 3, -1, 1, Q("8 mm")),
    Sketcher.Constraint("DistanceY", -1, 1, 1, 3, Q("56 mm")),
])
pad23 = body11.newObject("PartDesign::Pad", "Pad022")
pad23.Profile = sketch23
pad23.Length = 13
pad23.Reversed = True
doc.recompute()

boolean10 = body.newObject("PartDesign::Boolean", "Boolean009")
boolean10.Type = "Cut"
boolean10.addObjects([body11])

doc.recompute()
